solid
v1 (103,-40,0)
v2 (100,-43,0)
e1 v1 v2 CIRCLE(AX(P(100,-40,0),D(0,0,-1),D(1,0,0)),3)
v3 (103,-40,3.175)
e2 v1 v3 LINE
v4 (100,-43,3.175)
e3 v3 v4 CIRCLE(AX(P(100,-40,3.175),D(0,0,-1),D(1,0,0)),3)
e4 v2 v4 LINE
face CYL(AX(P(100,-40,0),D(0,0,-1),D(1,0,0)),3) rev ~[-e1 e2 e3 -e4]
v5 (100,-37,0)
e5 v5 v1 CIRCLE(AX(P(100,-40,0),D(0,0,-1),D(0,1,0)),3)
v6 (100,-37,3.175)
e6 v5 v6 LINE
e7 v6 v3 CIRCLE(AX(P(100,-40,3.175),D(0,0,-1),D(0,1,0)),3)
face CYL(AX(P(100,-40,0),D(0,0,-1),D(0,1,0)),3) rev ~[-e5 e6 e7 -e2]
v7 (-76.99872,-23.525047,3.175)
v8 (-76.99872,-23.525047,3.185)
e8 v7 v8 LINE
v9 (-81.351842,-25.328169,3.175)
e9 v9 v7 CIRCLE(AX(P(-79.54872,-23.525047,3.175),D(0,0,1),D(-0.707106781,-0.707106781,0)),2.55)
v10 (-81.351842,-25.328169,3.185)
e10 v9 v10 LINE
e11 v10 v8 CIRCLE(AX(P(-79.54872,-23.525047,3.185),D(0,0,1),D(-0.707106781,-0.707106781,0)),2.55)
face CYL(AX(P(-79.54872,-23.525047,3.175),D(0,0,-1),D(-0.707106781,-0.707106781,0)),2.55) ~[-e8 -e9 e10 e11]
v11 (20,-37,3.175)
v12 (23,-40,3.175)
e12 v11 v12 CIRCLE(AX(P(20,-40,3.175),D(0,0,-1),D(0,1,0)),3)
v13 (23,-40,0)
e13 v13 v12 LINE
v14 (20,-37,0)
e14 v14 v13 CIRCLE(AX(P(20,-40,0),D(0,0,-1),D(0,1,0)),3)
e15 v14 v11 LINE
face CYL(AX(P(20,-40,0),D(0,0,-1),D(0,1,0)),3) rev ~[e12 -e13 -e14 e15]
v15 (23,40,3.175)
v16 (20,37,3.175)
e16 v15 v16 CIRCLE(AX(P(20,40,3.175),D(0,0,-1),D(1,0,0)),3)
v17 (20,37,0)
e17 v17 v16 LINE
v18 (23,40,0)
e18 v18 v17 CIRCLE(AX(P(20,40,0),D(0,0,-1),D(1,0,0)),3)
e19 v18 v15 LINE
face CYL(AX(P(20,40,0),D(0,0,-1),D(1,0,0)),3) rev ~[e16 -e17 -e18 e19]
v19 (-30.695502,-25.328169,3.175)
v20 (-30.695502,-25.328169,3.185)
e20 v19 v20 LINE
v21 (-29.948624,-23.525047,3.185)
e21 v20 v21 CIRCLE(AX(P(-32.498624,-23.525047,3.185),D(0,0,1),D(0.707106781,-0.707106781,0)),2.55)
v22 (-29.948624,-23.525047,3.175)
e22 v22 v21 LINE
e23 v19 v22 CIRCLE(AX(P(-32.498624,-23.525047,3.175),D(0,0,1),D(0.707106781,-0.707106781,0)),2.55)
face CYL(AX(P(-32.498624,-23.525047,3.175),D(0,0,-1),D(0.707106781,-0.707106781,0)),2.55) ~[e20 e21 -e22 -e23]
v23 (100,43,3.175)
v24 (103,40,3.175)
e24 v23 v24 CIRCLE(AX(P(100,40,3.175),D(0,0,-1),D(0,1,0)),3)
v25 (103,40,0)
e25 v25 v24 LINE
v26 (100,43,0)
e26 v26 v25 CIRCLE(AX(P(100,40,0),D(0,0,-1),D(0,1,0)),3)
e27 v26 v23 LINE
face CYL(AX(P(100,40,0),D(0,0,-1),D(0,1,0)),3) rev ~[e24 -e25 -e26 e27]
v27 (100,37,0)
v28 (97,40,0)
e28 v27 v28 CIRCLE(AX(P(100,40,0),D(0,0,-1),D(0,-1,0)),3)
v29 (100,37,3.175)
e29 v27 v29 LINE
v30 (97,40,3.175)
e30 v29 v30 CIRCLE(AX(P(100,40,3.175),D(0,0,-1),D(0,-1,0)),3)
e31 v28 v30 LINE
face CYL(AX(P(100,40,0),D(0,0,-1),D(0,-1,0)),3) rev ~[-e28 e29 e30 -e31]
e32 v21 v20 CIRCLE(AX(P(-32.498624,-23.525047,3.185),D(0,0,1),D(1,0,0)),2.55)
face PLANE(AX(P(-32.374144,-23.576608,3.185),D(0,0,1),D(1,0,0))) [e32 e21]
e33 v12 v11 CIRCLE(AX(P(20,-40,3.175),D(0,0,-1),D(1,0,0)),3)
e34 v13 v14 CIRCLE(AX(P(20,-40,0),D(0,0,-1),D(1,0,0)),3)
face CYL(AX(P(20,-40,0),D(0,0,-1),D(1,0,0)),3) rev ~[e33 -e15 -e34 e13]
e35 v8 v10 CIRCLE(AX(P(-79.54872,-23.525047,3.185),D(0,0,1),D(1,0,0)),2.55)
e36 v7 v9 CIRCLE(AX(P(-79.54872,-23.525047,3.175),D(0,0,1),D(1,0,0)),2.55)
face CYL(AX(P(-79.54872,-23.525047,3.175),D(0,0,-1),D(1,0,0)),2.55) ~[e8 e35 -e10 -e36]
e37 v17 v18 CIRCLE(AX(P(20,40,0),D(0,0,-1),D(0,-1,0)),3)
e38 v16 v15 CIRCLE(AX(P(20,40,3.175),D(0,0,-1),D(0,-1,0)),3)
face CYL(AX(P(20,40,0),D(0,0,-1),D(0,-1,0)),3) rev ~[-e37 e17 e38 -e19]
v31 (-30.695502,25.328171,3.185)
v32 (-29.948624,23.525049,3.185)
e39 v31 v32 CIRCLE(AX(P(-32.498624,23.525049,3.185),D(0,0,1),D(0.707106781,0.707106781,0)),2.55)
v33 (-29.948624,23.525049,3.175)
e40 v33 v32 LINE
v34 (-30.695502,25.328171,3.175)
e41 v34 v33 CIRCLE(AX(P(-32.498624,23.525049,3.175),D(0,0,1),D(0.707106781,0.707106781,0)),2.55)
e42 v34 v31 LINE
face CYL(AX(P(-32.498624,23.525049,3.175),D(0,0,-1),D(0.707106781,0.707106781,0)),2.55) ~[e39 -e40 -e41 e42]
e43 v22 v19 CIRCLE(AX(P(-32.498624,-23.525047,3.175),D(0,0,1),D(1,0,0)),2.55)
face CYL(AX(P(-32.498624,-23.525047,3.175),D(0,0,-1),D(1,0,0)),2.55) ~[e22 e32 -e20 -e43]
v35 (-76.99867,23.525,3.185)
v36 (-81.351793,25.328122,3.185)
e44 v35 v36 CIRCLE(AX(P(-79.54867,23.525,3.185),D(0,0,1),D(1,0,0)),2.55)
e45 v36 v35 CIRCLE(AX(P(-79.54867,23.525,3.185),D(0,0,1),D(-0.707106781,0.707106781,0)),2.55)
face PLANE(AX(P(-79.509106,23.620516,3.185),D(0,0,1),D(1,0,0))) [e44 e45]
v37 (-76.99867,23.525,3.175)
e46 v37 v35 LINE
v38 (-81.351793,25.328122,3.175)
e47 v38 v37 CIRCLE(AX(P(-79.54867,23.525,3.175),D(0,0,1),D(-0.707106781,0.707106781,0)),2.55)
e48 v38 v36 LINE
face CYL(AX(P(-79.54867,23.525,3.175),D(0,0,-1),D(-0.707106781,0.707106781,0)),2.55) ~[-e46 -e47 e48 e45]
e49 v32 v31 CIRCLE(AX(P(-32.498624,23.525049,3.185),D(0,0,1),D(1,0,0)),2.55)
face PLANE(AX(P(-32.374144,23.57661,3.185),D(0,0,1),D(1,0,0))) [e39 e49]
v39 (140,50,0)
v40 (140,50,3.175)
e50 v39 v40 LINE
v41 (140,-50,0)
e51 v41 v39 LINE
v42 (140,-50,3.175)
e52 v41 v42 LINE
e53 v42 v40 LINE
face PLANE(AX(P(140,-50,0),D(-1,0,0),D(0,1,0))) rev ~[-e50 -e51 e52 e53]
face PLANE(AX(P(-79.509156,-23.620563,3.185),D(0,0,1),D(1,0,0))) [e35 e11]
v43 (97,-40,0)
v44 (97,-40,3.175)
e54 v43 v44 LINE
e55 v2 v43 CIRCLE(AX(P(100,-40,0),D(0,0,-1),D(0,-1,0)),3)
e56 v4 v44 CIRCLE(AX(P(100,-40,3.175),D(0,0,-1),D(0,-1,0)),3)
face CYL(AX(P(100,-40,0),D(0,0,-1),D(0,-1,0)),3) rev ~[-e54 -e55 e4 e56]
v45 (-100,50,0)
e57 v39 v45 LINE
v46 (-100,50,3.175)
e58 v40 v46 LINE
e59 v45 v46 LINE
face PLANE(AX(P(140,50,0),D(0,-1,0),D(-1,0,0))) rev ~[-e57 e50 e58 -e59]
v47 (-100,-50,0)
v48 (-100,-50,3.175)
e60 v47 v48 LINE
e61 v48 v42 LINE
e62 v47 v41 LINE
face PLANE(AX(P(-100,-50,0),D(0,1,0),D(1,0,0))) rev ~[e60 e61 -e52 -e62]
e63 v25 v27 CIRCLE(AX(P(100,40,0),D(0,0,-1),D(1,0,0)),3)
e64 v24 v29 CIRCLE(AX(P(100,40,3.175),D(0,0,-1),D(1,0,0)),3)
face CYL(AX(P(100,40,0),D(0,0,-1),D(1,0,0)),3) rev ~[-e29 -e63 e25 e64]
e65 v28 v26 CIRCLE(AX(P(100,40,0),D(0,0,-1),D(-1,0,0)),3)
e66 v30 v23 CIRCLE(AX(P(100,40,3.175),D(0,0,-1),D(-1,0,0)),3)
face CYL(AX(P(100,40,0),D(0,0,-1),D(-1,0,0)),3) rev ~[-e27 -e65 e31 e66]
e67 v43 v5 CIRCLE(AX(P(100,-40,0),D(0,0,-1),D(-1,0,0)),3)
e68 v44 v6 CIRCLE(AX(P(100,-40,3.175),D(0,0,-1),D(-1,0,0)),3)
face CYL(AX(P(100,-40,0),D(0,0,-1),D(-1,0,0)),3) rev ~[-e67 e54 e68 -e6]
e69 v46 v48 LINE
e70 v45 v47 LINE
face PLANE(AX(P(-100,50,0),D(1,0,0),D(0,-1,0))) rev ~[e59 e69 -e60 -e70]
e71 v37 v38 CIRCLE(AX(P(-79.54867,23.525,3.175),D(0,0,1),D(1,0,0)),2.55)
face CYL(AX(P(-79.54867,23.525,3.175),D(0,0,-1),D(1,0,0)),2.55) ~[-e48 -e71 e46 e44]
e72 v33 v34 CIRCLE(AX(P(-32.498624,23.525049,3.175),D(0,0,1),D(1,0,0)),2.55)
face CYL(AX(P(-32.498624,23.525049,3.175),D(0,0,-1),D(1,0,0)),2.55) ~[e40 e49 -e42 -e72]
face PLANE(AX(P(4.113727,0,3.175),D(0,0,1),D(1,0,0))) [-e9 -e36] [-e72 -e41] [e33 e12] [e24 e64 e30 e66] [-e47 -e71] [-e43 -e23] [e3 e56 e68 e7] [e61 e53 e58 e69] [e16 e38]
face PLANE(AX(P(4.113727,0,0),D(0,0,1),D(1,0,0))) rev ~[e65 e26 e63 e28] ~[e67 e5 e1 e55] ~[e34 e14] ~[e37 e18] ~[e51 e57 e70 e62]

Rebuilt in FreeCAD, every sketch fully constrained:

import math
import FreeCAD as App
import Part
import Sketcher
from FreeCAD import Vector

doc = App.newDocument("Part")
params = doc.addObject("Spreadsheet::Sheet", "Params")
for row, (alias, value) in enumerate([
    ("sketch1_radius", "3 mm"),
    ("sketch1_width", "240 mm"),
    ("sketch1_height", "100 mm"),
    ("pad1_length", "3.175 mm"),
    ("sketch2_radius", "2.55 mm"),
    ("pad2_length", "0.01 mm"),
], start=1):
    params.set(f"A{row}", alias)
    params.set(f"B{row}", "=" + value)
    params.setAlias(f"B{row}", alias)

body = doc.addObject("PartDesign::Body", "Body")

sketch1 = doc.addObject("Sketcher::SketchObject", "Sketch")
body.addObject(sketch1)
sketch1.AttachmentSupport = (doc.XY_Plane, [""])
sketch1.MapMode = "FlatFace"
sketch1.addGeometry(Part.LineSegment(Vector(-100, 50, 0), Vector(-100, -50, 0)), False)
sketch1.addGeometry(Part.LineSegment(Vector(-100, -50, 0), Vector(140, -50, 0)), False)
sketch1.addGeometry(Part.LineSegment(Vector(140, -50, 0), Vector(140, 50, 0)), False)
sketch1.addGeometry(Part.LineSegment(Vector(140, 50, 0), Vector(-100, 50, 0)), False)
sketch1.addGeometry(Part.ArcOfCircle(Part.Circle(Vector(100, -40, 0), Vector(0, 0, 1), 3), math.radians(180), math.radians(270)), False)
sketch1.addGeometry(Part.ArcOfCircle(Part.Circle(Vector(100, -40, 0), Vector(0, 0, 1), 3), math.radians(90), math.radians(180)), False)
sketch1.addGeometry(Part.ArcOfCircle(Part.Circle(Vector(100, -40, 0), Vector(0, 0, 1), 3), math.radians(0), math.radians(90)), False)
sketch1.addGeometry(Part.ArcOfCircle(Part.Circle(Vector(100, -40, 0), Vector(0, 0, 1), 3), math.radians(-90), math.radians(0)), False)
sketch1.addGeometry(Part.ArcOfCircle(Part.Circle(Vector(100, 40, 0), Vector(0, 0, 1), 3), math.radians(90), math.radians(180)), False)
sketch1.addGeometry(Part.ArcOfCircle(Part.Circle(Vector(100, 40, 0), Vector(0, 0, 1), 3), math.radians(0), math.radians(90)), False)
sketch1.addGeometry(Part.ArcOfCircle(Part.Circle(Vector(100, 40, 0), Vector(0, 0, 1), 3), math.radians(-90), math.radians(0)), False)
sketch1.addGeometry(Part.ArcOfCircle(Part.Circle(Vector(100, 40, 0), Vector(0, 0, 1), 3), math.radians(180), math.radians(270)), False)
sketch1.addGeometry(Part.ArcOfCircle(Part.Circle(Vector(20, -40, 0), Vector(0, 0, 1), 3), math.radians(90), math.radians(360)), False)
sketch1.addGeometry(Part.ArcOfCircle(Part.Circle(Vector(20, -40, 0), Vector(0, 0, 1), 3), math.radians(0), math.radians(90)), False)
sketch1.addGeometry(Part.ArcOfCircle(Part.Circle(Vector(20, 40, 0), Vector(0, 0, 1), 3), math.radians(0), math.radians(270)), False)
sketch1.addGeometry(Part.ArcOfCircle(Part.Circle(Vector(20, 40, 0), Vector(0, 0, 1), 3), math.radians(-90), math.radians(0)), False)
sketch1.addConstraint(Sketcher.Constraint("Coincident", 0, 2, 1, 1))
sketch1.addConstraint(Sketcher.Constraint("Coincident", 1, 2, 2, 1))
sketch1.addConstraint(Sketcher.Constraint("Coincident", 2, 2, 3, 1))
sketch1.addConstraint(Sketcher.Constraint("Coincident", 3, 2, 0, 1))
sketch1.addConstraint(Sketcher.Constraint("Tangent", 4, 1, 5, 2))
sketch1.addConstraint(Sketcher.Constraint("Tangent", 5, 1, 6, 2))
sketch1.addConstraint(Sketcher.Constraint("Tangent", 6, 1, 7, 2))
sketch1.addConstraint(Sketcher.Constraint("Tangent", 7, 1, 4, 2))
sketch1.addConstraint(Sketcher.Constraint("Tangent", 8, 1, 9, 2))
sketch1.addConstraint(Sketcher.Constraint("Tangent", 9, 1, 10, 2))
sketch1.addConstraint(Sketcher.Constraint("Tangent", 10, 1, 11, 2))
sketch1.addConstraint(Sketcher.Constraint("Tangent", 11, 1, 8, 2))
sketch1.addConstraint(Sketcher.Constraint("Tangent", 12, 1, 13, 2))
sketch1.addConstraint(Sketcher.Constraint("Coincident", 13, 1, 12, 2))
sketch1.addConstraint(Sketcher.Constraint("Tangent", 14, 1, 15, 2))
sketch1.addConstraint(Sketcher.Constraint("Coincident", 15, 1, 14, 2))
sketch1.addConstraint(Sketcher.Constraint("Vertical", 0))
sketch1.addConstraint(Sketcher.Constraint("Horizontal", 1))
sketch1.addConstraint(Sketcher.Constraint("Vertical", 2))
sketch1.addConstraint(Sketcher.Constraint("Horizontal", 3))
sketch1.addConstraint(Sketcher.Constraint("Equal", 4, 5))
sketch1.addConstraint(Sketcher.Constraint("Equal", 7, 8))
sketch1.addConstraint(Sketcher.Constraint("Equal", 8, 9))
sketch1.addConstraint(Sketcher.Constraint("Equal", 11, 12))
sketch1.addConstraint(Sketcher.Constraint("Equal", 13, 14))
sketch1.addConstraint(Sketcher.Constraint("Symmetric", 4, 3, 8, 3, -1))
sketch1.addConstraint(Sketcher.Constraint("Symmetric", 12, 3, 14, 3, -1))
sketch1.addConstraint(Sketcher.Constraint("Horizontal", 7, 3, 12, 3))
sketch1.addConstraint(Sketcher.Constraint("Horizontal", 13, 3, 4, 1))
sketch1.addConstraint(Sketcher.Constraint("Horizontal", 4, 1, 6, 1))
sketch1.addConstraint(Sketcher.Constraint("Horizontal", 15, 3, 9, 1))
sketch1.addConstraint(Sketcher.Constraint("Horizontal", 9, 1, 11, 1))
sketch1.addConstraint(Sketcher.Constraint("Horizontal", 6, 1, 13, 1))
sketch1.addConstraint(Sketcher.Constraint("Horizontal", 11, 1, 14, 1))
sketch1.addConstraint(Sketcher.Constraint("Vertical", 11, 3, 5, 1))
sketch1.addConstraint(Sketcher.Constraint("Vertical", 5, 1, 7, 1))
sketch1.addConstraint(Sketcher.Constraint("Vertical", 7, 1, 8, 1))
sketch1.addConstraint(Sketcher.Constraint("Vertical", 8, 1, 10, 1))
sketch1.addConstraint(Sketcher.Constraint("Vertical", 15, 3, 12, 1))
sketch1.addConstraint(Sketcher.Constraint("Vertical", 12, 1, 15, 1))
sketch1.addConstraint(Sketcher.Constraint("Radius", 4, 3.0))
sketch1.addConstraint(Sketcher.Constraint("DistanceX", 1, 1, 1, 2, 240.0))
sketch1.addConstraint(Sketcher.Constraint("DistanceY", 0, 2, 0, 1, 100.0))
sketch1.addConstraint(Sketcher.Constraint("DistanceX", -1, 1, 4, 3, 100.0))
sketch1.addConstraint(Sketcher.Constraint("DistanceY", 4, 3, -1, 1, 40.0))
sketch1.addConstraint(Sketcher.Constraint("DistanceX", -1, 1, 12, 3, 20.0))
sketch1.addConstraint(Sketcher.Constraint("DistanceX", 0, 2, -1, 1, 100.0))
sketch1.addConstraint(Sketcher.Constraint("DistanceY", 0, 2, -1, 1, 50.0))
sketch1.setExpression("Constraints[40]", "Params.sketch1_radius")
sketch1.setExpression("Constraints[41]", "Params.sketch1_width")
sketch1.setExpression("Constraints[42]", "Params.sketch1_height")
pad1 = doc.addObject("PartDesign::Pad", "Pad")
body.addObject(pad1)
pad1.Profile = sketch1
pad1.setExpression("Length", "Params.pad1_length")

sketch2 = doc.addObject("Sketcher::SketchObject", "Sketch001")
body.addObject(sketch2)
sketch2.AttachmentSupport = (doc.XY_Plane, [""])
sketch2.MapMode = "FlatFace"
sketch2.AttachmentOffset = App.Placement(Vector(0, 0, 3.175), App.Rotation())
sketch2.addGeometry(Part.ArcOfCircle(Part.Circle(Vector(-79.54867, 23.525, 0), Vector(0, 0, 1), 2.55), math.radians(0), math.radians(135)), False)
sketch2.addGeometry(Part.ArcOfCircle(Part.Circle(Vector(-79.54867, 23.525, 0), Vector(0, 0, 1), 2.55), math.radians(135), math.radians(360)), False)
sketch2.addGeometry(Part.ArcOfCircle(Part.Circle(Vector(-79.54872, -23.525047, 0), Vector(0, 0, 1), 2.55), math.radians(0), math.radians(225)), False)
sketch2.addGeometry(Part.ArcOfCircle(Part.Circle(Vector(-79.54872, -23.525047, 0), Vector(0, 0, 1), 2.55), math.radians(-135), math.radians(0)), False)
sketch2.addGeometry(Part.ArcOfCircle(Part.Circle(Vector(-32.498624, -23.525047, 0), Vector(0, 0, 1), 2.55), math.radians(0), math.radians(315)), False)
sketch2.addGeometry(Part.ArcOfCircle(Part.Circle(Vector(-32.498624, -23.525047, 0), Vector(0, 0, 1), 2.55), math.radians(-45), math.radians(0)), False)
sketch2.addGeometry(Part.ArcOfCircle(Part.Circle(Vector(-32.498624, 23.525049, 0), Vector(0, 0, 1), 2.55), math.radians(0), math.radians(45)), False)
sketch2.addGeometry(Part.ArcOfCircle(Part.Circle(Vector(-32.498624, 23.525049, 0), Vector(0, 0, 1), 2.55), math.radians(45), math.radians(360)), False)
sketch2.addConstraint(Sketcher.Constraint("Tangent", 0, 1, 1, 2))
sketch2.addConstraint(Sketcher.Constraint("Coincident", 1, 1, 0, 2))
sketch2.addConstraint(Sketcher.Constraint("Tangent", 2, 1, 3, 2))
sketch2.addConstraint(Sketcher.Constraint("Coincident", 3, 1, 2, 2))
sketch2.addConstraint(Sketcher.Constraint("Tangent", 4, 1, 5, 2))
sketch2.addConstraint(Sketcher.Constraint("Coincident", 5, 1, 4, 2))
sketch2.addConstraint(Sketcher.Constraint("Tangent", 6, 1, 7, 2))
sketch2.addConstraint(Sketcher.Constraint("Coincident", 7, 1, 6, 2))
sketch2.addConstraint(Sketcher.Constraint("Equal", 1, 2))
sketch2.addConstraint(Sketcher.Constraint("Equal", 3, 4))
sketch2.addConstraint(Sketcher.Constraint("Equal", 5, 6))
sketch2.addConstraint(Sketcher.Constraint("Symmetric", 4, 3, 6, 3, -1))
sketch2.addConstraint(Sketcher.Constraint("Horizontal", 3, 3, 4, 3))
sketch2.addConstraint(Sketcher.Constraint("Horizontal", 1, 3, 0, 1))
sketch2.addConstraint(Sketcher.Constraint("Horizontal", 5, 3, 2, 1))
sketch2.addConstraint(Sketcher.Constraint("Horizontal", 2, 1, 4, 1))
sketch2.addConstraint(Sketcher.Constraint("Horizontal", 3, 1, 5, 1))
sketch2.addConstraint(Sketcher.Constraint("Horizontal", 7, 3, 6, 1))
sketch2.addConstraint(Sketcher.Constraint("Vertical", 5, 1, 7, 1))
sketch2.addConstraint(Sketcher.Constraint("Radius", 0, 2.55))
sketch2.addConstraint(Sketcher.Constraint("DistanceY", -1, 1, 0, 3, 23.525))
sketch2.addConstraint(Sketcher.Constraint("DistanceX", 5, 1, -1, 1, 30.695502))
sketch2.addConstraint(Sketcher.Constraint("DistanceX", 0, 3, -1, 1, 79.54867))
sketch2.addConstraint(Sketcher.Constraint("DistanceX", 2, 3, -1, 1, 79.54872))
sketch2.addConstraint(Sketcher.Constraint("DistanceY", -1, 1, 6, 3, 23.525049))
sketch2.addConstraint(Sketcher.Constraint("DistanceY", -1, 1, 1, 1, 25.328122))
sketch2.addConstraint(Sketcher.Constraint("DistanceY", 3, 1, -1, 1, 25.328169))
sketch2.setExpression("Constraints[19]", "Params.sketch2_radius")
pad2 = doc.addObject("PartDesign::Pad", "Pad001")
body.addObject(pad2)
pad2.Profile = sketch2
pad2.setExpression("Length", "Params.pad2_length")

doc.recompute()
